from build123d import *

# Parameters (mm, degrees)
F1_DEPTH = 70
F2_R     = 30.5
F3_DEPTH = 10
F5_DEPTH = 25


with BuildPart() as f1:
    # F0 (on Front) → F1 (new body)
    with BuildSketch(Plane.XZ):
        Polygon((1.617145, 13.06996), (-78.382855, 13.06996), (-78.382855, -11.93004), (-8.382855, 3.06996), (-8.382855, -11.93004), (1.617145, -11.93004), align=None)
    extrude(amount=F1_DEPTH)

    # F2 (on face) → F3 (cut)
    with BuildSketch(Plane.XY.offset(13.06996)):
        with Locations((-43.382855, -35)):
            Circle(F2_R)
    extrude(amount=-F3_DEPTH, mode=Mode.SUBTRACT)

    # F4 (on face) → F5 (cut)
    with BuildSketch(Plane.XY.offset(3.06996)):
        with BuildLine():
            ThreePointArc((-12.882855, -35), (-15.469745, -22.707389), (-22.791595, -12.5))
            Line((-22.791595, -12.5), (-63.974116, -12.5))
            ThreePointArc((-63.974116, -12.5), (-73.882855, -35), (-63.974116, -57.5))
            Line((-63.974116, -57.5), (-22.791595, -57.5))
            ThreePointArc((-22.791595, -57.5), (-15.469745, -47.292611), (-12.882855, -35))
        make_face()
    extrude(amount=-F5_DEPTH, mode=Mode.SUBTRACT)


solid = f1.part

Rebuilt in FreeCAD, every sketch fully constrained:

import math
import FreeCAD as App
import Part
import Sketcher
from FreeCAD import Vector

doc = App.newDocument("Part")
params = doc.addObject("Spreadsheet::Sheet", "Params")
for row, (alias, value) in enumerate([
    ("sketch1_width", "80 mm"),
    ("sketch1_width2", "10 mm"),
    ("sketch1_height", "25 mm"),
    ("sketch1_height2", "15 mm"),
    ("pad1_length", "70 mm"),
    ("sketch2_diameter", "61 mm"),
    ("pocket1_length", "10 mm"),
    ("sketch3_radius", "30.5 mm"),
    ("pocket2_length", "25 mm"),
], start=1):
    params.set(f"A{row}", alias)
    params.set(f"B{row}", "=" + value)
    params.setAlias(f"B{row}", alias)

body = doc.addObject("PartDesign::Body", "Body")

sketch1 = doc.addObject("Sketcher::SketchObject", "Sketch")
body.addObject(sketch1)
sketch1.AttachmentSupport = (doc.XZ_Plane, [""])
sketch1.MapMode = "FlatFace"
sketch1.addGeometry([
    Part.LineSegment(Vector(2, 13, 0), Vector(-78, 13, 0)),
    Part.LineSegment(Vector(-78, 13, 0), Vector(-78, -12, 0)),
    Part.LineSegment(Vector(-78, -12, 0), Vector(-8, 3, 0)),
    Part.LineSegment(Vector(-8, 3, 0), Vector(-8, -12, 0)),
    Part.LineSegment(Vector(-8, -12, 0), Vector(2, -12, 0)),
    Part.LineSegment(Vector(2, -12, 0), Vector(2, 13, 0)),
], False)
sketch1.addConstraint([
    Sketcher.Constraint("Coincident", 0, 2, 1, 1),
    Sketcher.Constraint("Coincident", 1, 2, 2, 1),
    Sketcher.Constraint("Coincident", 2, 2, 3, 1),
    Sketcher.Constraint("Coincident", 3, 2, 4, 1),
    Sketcher.Constraint("Coincident", 4, 2, 5, 1),
    Sketcher.Constraint("Coincident", 5, 2, 0, 1),
    Sketcher.Constraint("Horizontal", 0),
    Sketcher.Constraint("Vertical", 1),
    Sketcher.Constraint("Vertical", 3),
    Sketcher.Constraint("Horizontal", 4),
    Sketcher.Constraint("Vertical", 5),
    Sketcher.Constraint("Horizontal", 1, 2, 3, 2),
    Sketcher.Constraint("DistanceX", 0, 2, 0, 1, 80.0),
    Sketcher.Constraint("DistanceX", 4, 1, 4, 2, 10.0),
    Sketcher.Constraint("DistanceY", 1, 2, 1, 1, 25.0),
    Sketcher.Constraint("DistanceY", 3, 2, 3, 1, 15.0),
    Sketcher.Constraint("DistanceY", -1, 1, 0, 2, 13.06996),
    Sketcher.Constraint("DistanceX", 0, 2, -1, 1, 78.382855),
])
sketch1.setExpression("Constraints[12]", "Params.sketch1_width")
sketch1.setExpression("Constraints[13]", "Params.sketch1_width2")
sketch1.setExpression("Constraints[14]", "Params.sketch1_height")
sketch1.setExpression("Constraints[15]", "Params.sketch1_height2")
pad1 = doc.addObject("PartDesign::Pad", "Pad")
body.addObject(pad1)
pad1.Profile = sketch1
pad1.setExpression("Length", "Params.pad1_length")

sketch2 = doc.addObject("Sketcher::SketchObject", "Sketch001")
body.addObject(sketch2)
sketch2.AttachmentSupport = (doc.XY_Plane, [""])
sketch2.MapMode = "FlatFace"
sketch2.AttachmentOffset = App.Placement(Vector(0, 0, 13.06996), App.Rotation())
sketch2.addGeometry(Part.Circle(Vector(-43, -35, 0), Vector(0, 0, 1), 30), False)
sketch2.addConstraint([
    Sketcher.Constraint("Diameter", 0, 61.0),
    Sketcher.Constraint("DistanceY", 0, 3, -1, 1, 35.0),
    Sketcher.Constraint("DistanceX", 0, 3, -1, 1, 43.382855),
])
sketch2.setExpression("Constraints[0]", "Params.sketch2_diameter")
pocket1 = doc.addObject("PartDesign::Pocket", "Pocket")
body.addObject(pocket1)
pocket1.Profile = sketch2
pocket1.setExpression("Length", "Params.pocket1_length")

sketch3 = doc.addObject("Sketcher::SketchObject", "Sketch002")
body.addObject(sketch3)
sketch3.AttachmentSupport = (doc.XY_Plane, [""])
sketch3.MapMode = "FlatFace"
sketch3.AttachmentOffset = App.Placement(Vector(0, 0, 3.06996), App.Rotation())
sketch3.addGeometry([
    Part.ArcOfCircle(Part.Circle(Vector(-43, -35, 0), Vector(0, 0, 1), 30), math.radians(0), math.radians(48)),
    Part.LineSegment(Vector(-23, -12, 0), Vector(-64, -12, 0)),
    Part.ArcOfCircle(Part.Circle(Vector(-43, -35, 0), Vector(0, 0, 1), 31), math.radians(132), math.radians(228)),
    Part.LineSegment(Vector(-64, -58, 0), Vector(-23, -58, 0)),
    Part.ArcOfCircle(Part.Circle(Vector(-43, -35, 0), Vector(0, 0, 1), 30), math.radians(-48), math.radians(0)),
], False)
sketch3.addConstraint([
    Sketcher.Constraint("Coincident", 0, 2, 1, 1),
    Sketcher.Constraint("Coincident", 1, 2, 2, 1),
    Sketcher.Constraint("Coincident", 2, 2, 3, 1),
    Sketcher.Constraint("Coincident", 3, 2, 4, 1),
    Sketcher.Constraint("Tangent", 4, 2, 0, 1),
    Sketcher.Constraint("Horizontal", 1),
    Sketcher.Constraint("Horizontal", 3),
    Sketcher.Constraint("Coincident", 2, 3, 0, 3),
    Sketcher.Constraint("Equal", 0, 2),
    Sketcher.Constraint("Equal", 2, 4),
    Sketcher.Constraint("Horizontal", 2, 3, 4, 2),
    Sketcher.Constraint("Vertical", 1, 2, 2, 2),
    Sketcher.Constraint("Radius", 0, 30.5),
    Sketcher.Constraint("DistanceY", 0, 3, -1, 1, 35.0),
    Sketcher.Constraint("DistanceY", 2, 2, 1, 2, 45.0),
    Sketcher.Constraint("DistanceX", 0, 3, -1, 1, 43.382855),
])
sketch3.setExpression("Constraints[12]", "Params.sketch3_radius")
pocket2 = doc.addObject("PartDesign::Pocket", "Pocket001")
body.addObject(pocket2)
pocket2.Profile = sketch3
pocket2.setExpression("Length", "Params.pocket2_length")

doc.recompute()
